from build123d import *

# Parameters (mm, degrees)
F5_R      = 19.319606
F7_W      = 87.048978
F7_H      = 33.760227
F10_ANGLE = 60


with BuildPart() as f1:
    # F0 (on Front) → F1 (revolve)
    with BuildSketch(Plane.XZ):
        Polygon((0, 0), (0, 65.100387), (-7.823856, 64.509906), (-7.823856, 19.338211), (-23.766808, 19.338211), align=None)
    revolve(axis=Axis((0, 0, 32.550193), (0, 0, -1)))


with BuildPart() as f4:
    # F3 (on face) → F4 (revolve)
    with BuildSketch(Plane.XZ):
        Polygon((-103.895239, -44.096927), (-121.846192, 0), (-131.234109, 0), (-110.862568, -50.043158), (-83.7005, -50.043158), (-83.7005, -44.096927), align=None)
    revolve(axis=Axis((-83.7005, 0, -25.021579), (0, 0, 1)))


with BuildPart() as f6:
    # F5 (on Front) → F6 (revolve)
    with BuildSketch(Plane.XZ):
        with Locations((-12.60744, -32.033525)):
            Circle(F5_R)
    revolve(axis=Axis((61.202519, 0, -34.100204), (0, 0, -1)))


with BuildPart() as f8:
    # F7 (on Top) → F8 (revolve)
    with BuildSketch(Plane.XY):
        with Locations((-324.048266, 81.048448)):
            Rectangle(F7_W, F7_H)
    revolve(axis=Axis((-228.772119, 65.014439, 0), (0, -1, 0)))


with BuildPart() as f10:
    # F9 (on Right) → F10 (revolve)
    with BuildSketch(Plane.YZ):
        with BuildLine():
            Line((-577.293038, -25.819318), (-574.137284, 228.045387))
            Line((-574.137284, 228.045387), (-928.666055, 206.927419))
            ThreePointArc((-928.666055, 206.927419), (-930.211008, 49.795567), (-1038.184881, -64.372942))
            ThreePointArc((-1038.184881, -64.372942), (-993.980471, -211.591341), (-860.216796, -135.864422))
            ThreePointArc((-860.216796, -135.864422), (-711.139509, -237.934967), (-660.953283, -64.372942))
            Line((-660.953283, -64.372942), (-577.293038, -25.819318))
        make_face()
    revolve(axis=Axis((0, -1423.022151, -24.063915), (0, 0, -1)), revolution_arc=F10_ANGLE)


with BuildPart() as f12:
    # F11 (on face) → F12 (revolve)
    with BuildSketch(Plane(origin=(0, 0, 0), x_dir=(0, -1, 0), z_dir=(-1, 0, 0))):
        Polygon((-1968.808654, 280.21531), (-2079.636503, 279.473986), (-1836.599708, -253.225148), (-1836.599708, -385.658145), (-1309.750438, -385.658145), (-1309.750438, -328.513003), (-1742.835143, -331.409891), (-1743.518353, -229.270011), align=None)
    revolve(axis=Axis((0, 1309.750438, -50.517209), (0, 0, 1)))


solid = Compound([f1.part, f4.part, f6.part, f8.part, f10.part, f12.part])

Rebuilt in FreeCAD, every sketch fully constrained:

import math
import FreeCAD as App
import Part
import Sketcher
from FreeCAD import Vector
Q = App.Units.Quantity


def add_polygon(sketch, points):
    """Adds a closed chain of lines whose ends are joined by coincident constraints."""
    first, n = sketch.GeometryCount, len(points)
    for a, b in zip(points, points[1:] + points[:1]):
        sketch.addGeometry(Part.LineSegment(App.Vector(*a, 0), App.Vector(*b, 0)), False)
    for i in range(n):
        sketch.addConstraint(Sketcher.Constraint("Coincident", first + i, 2, first + (i + 1) % n, 1))

doc = App.newDocument("Part")
body = doc.addObject("PartDesign::Body", "Body")

sketch1 = doc.addObject("Sketcher::SketchObject", "Sketch")
body.addObject(sketch1)
sketch1.AttachmentSupport = (doc.XZ_Plane, [""])
sketch1.MapMode = "FlatFace"
add_polygon(sketch1, [(0, 0), (0, 65), (-8, 65), (-8, 19), (-24, 19)])
sketch1.addConstraint(Sketcher.Constraint("Vertical", 0))
sketch1.addConstraint(Sketcher.Constraint("Vertical", 2))
sketch1.addConstraint(Sketcher.Constraint("Horizontal", 3))
sketch1.addConstraint(Sketcher.Constraint("Coincident", 4, 2, -1, 1))
sketch1.addConstraint(Sketcher.Constraint("DistanceX", 3, 2, 3, 1, Q("15.942952 mm")))
sketch1.addConstraint(Sketcher.Constraint("DistanceY", 0, 1, 0, 2, Q("65.100387 mm")))
sketch1.addConstraint(Sketcher.Constraint("DistanceY", 2, 2, 2, 1, Q("45.171695 mm")))
sketch1.addConstraint(Sketcher.Constraint("DistanceY", -1, 1, 2, 2, Q("19.338211 mm")))
sketch1.addConstraint(Sketcher.Constraint("DistanceX", 3, 2, -1, 1, Q("23.766808 mm")))
revolution = doc.addObject("PartDesign::Revolution", "Revolution")
body.addObject(revolution)
revolution.Profile = sketch1
revolution.ReferenceAxis = (sketch1, ["V_Axis"])
revolution.Angle = 360
body2 = doc.addObject("PartDesign::Body", "Body001")

sketch2 = doc.addObject("Sketcher::SketchObject", "Sketch001")
body2.addObject(sketch2)
sketch2.AttachmentSupport = (doc.getObject("XZ_Plane001"), [""])
sketch2.MapMode = "FlatFace"
add_polygon(sketch2, [(-104, -44), (-122, 0), (-131, 0), (-111, -50), (-84, -50), (-84, -44)])
sketch2.addGeometry(Part.LineSegment(Vector(-84, -50, 0), Vector(-84, 0, 0)), True)
sketch2.addConstraint(Sketcher.Constraint("Horizontal", 1))
sketch2.addConstraint(Sketcher.Constraint("Horizontal", 3))
sketch2.addConstraint(Sketcher.Constraint("Vertical", 4))
sketch2.addConstraint(Sketcher.Constraint("Horizontal", 5))
sketch2.addConstraint(Sketcher.Constraint("Vertical", 6))
sketch2.addConstraint(Sketcher.Constraint("Coincident", 6, 1, 3, 2))
sketch2.addConstraint(Sketcher.Constraint("PointOnObject", 0, 2, -1))
sketch2.addConstraint(Sketcher.Constraint("PointOnObject", 6, 2, -1))
sketch2.addConstraint(Sketcher.Constraint("Parallel", 0, 2))
sketch2.addConstraint(Sketcher.Constraint("DistanceX", 5, 2, 5, 1, Q("20.194739 mm")))
sketch2.addConstraint(Sketcher.Constraint("DistanceY", 4, 1, 4, 2, Q("5.946231 mm")))
sketch2.addConstraint(Sketcher.Constraint("DistanceX", 3, 2, -1, 1, Q("83.7005 mm")))
sketch2.addConstraint(Sketcher.Constraint("DistanceX", 1, 2, 1, 1, Q("9.387917 mm")))
sketch2.addConstraint(Sketcher.Constraint("DistanceX", 3, 1, 3, 2, Q("27.162068 mm")))
sketch2.addConstraint(Sketcher.Constraint("DistanceY", 6, 1, 6, 2, Q("50.043158 mm")))
revolution2 = doc.addObject("PartDesign::Revolution", "Revolution001")
body2.addObject(revolution2)
revolution2.Profile = sketch2
revolution2.ReferenceAxis = (sketch2, ["Axis0"])
revolution2.Angle = 360
body3 = doc.addObject("PartDesign::Body", "Body002")

sketch3 = doc.addObject("Sketcher::SketchObject", "Sketch002")
body3.addObject(sketch3)
sketch3.AttachmentSupport = (doc.getObject("XZ_Plane002"), [""])
sketch3.MapMode = "FlatFace"
sketch3.addGeometry(Part.Circle(Vector(-13, -32, 0), Vector(0, 0, 1), 19), False)
sketch3.addGeometry(Part.LineSegment(Vector(61, -32, 0), Vector(61, -42, 0)), True)
sketch3.addConstraint(Sketcher.Constraint("Vertical", 1))
sketch3.addConstraint(Sketcher.Constraint("Horizontal", 0, 3, 1, 1))
sketch3.addConstraint(Sketcher.Constraint("DistanceY", 1, 2, 1, 1, Q("10 mm")))
sketch3.addConstraint(Sketcher.Constraint("Diameter", 0, Q("38.639212 mm")))
sketch3.addConstraint(Sketcher.Constraint("DistanceX", 0, 3, -1, 1, Q("12.60744 mm")))
sketch3.addConstraint(Sketcher.Constraint("DistanceX", -1, 1, 1, 1, Q("61.202519 mm")))
sketch3.addConstraint(Sketcher.Constraint("DistanceY", 0, 3, -1, 1, Q("32.033525 mm")))
revolution3 = doc.addObject("PartDesign::Revolution", "Revolution002")
body3.addObject(revolution3)
revolution3.Profile = sketch3
revolution3.ReferenceAxis = (sketch3, ["Axis0"])
revolution3.Angle = 360
body4 = doc.addObject("PartDesign::Body", "Body003")

sketch4 = doc.addObject("Sketcher::SketchObject", "Sketch003")
body4.addObject(sketch4)
sketch4.AttachmentSupport = (doc.getObject("XY_Plane003"), [""])
sketch4.MapMode = "FlatFace"
add_polygon(sketch4, [(-368, 98), (-368, 64), (-281, 64), (-281, 98)])
sketch4.addGeometry(Part.LineSegment(Vector(-229, 98, 0), Vector(-229, 64, 0)), True)
sketch4.addConstraint(Sketcher.Constraint("Vertical", 0))
sketch4.addConstraint(Sketcher.Constraint("Horizontal", 1))
sketch4.addConstraint(Sketcher.Constraint("Vertical", 2))
sketch4.addConstraint(Sketcher.Constraint("Horizontal", 3))
sketch4.addConstraint(Sketcher.Constraint("Vertical", 4))
sketch4.addConstraint(Sketcher.Constraint("Horizontal", 3, 2, 4, 1))
sketch4.addConstraint(Sketcher.Constraint("Horizontal", 1, 2, 4, 2))
sketch4.addConstraint(Sketcher.Constraint("DistanceX", 1, 1, 1, 2, Q("87.048978 mm")))
sketch4.addConstraint(Sketcher.Constraint("DistanceY", 0, 2, 0, 1, Q("33.760227 mm")))
sketch4.addConstraint(Sketcher.Constraint("DistanceY", -1, 1, 2, 2, Q("97.928562 mm")))
sketch4.addConstraint(Sketcher.Constraint("DistanceX", 4, 1, -1, 1, Q("228.772119 mm")))
sketch4.addConstraint(Sketcher.Constraint("DistanceX", 0, 2, -1, 1, Q("367.572755 mm")))
revolution4 = doc.addObject("PartDesign::Revolution", "Revolution003")
body4.addObject(revolution4)
revolution4.Profile = sketch4
revolution4.ReferenceAxis = (sketch4, ["Axis0"])
revolution4.Angle = 360
body5 = doc.addObject("PartDesign::Body", "Body004")

sketch5 = doc.addObject("Sketcher::SketchObject", "Sketch004")
body5.addObject(sketch5)
sketch5.AttachmentSupport = (doc.getObject("YZ_Plane004"), [""])
sketch5.MapMode = "FlatFace"
sketch5.addGeometry(Part.LineSegment(Vector(-577, -26, 0), Vector(-574, 228, 0)), False)
sketch5.addGeometry(Part.LineSegment(Vector(-574, 228, 0), Vector(-929, 207, 0)), False)
sketch5.addGeometry(Part.ArcOfCircle(Part.Circle(Vector(-1130, 130, 0), Vector(0, 0, 1), 215), math.radians(-65), math.radians(21)), False)
sketch5.addGeometry(Part.ArcOfCircle(Part.Circle(Vector(-957, -120, 0), Vector(0, 0, 1), 98), math.radians(145), math.radians(351)), False)
sketch5.addGeometry(Part.ArcOfCircle(Part.Circle(Vector(-749, -133, 0), Vector(0, 0, 1), 111), math.radians(-179), math.radians(38)), False)
sketch5.addGeometry(Part.LineSegment(Vector(-661, -64, 0), Vector(-577, -26, 0)), False)
sketch5.addGeometry(Part.LineSegment(Vector(-1423, 228, 0), Vector(-1423, -136, 0)), True)
sketch5.addConstraint(Sketcher.Constraint("Coincident", 0, 2, 1, 1))
sketch5.addConstraint(Sketcher.Constraint("Coincident", 1, 2, 2, 2))
sketch5.addConstraint(Sketcher.Constraint("Coincident", 2, 1, 3, 1))
sketch5.addConstraint(Sketcher.Constraint("Coincident", 3, 2, 4, 1))
sketch5.addConstraint(Sketcher.Constraint("Coincident", 4, 2, 5, 1))
sketch5.addConstraint(Sketcher.Constraint("Coincident", 5, 2, 0, 1))
sketch5.addConstraint(Sketcher.Constraint("Vertical", 6))
sketch5.addConstraint(Sketcher.Constraint("Horizontal", 2, 1, 4, 2))
sketch5.addConstraint(Sketcher.Constraint("Horizontal", 0, 2, 6, 1))
sketch5.addConstraint(Sketcher.Constraint("Horizontal", 3, 2, 6, 2))
sketch5.addConstraint(Sketcher.Constraint("Radius", 2, Q("215.143728 mm")))
sketch5.addConstraint(Sketcher.Constraint("Radius", 3, Q("98.339974 mm")))
sketch5.addConstraint(Sketcher.Constraint("Radius", 4, Q("111.470125 mm")))
sketch5.addConstraint(Sketcher.Constraint("DistanceX", 4, 2, 0, 2, Q("86.815999 mm")))
sketch5.addConstraint(Sketcher.Constraint("DistanceY", 6, 2, 6, 1, Q("363.909809 mm")))
sketch5.addConstraint(Sketcher.Constraint("DistanceX", 4, 3, 5, 2, Q("171.4901 mm")))
sketch5.addConstraint(Sketcher.Constraint("Distance", 0, Q("253.884319 mm")))
sketch5.addConstraint(Sketcher.Constraint("Distance", 5, Q("92.116331 mm")))
sketch5.addConstraint(Sketcher.Constraint("DistanceY", -1, 1, 2, 3, Q("130.33063 mm")))
sketch5.addConstraint(Sketcher.Constraint("DistanceY", 3, 3, -1, 1, Q("120.33886 mm")))
sketch5.addConstraint(Sketcher.Constraint("DistanceY", 4, 3, -1, 1, Q("133.013349 mm")))
sketch5.addConstraint(Sketcher.Constraint("DistanceY", -1, 1, 1, 2, Q("206.927419 mm")))
sketch5.addConstraint(Sketcher.Constraint("DistanceX", 2, 1, -1, 1, Q("1038.184881 mm")))
sketch5.addConstraint(Sketcher.Constraint("DistanceY", 2, 1, -1, 1, Q("64.372942 mm")))
sketch5.addConstraint(Sketcher.Constraint("DistanceX", 6, 1, -1, 1, Q("1423.022151 mm")))
revolution5 = doc.addObject("PartDesign::Revolution", "Revolution004")
body5.addObject(revolution5)
revolution5.Profile = sketch5
revolution5.ReferenceAxis = (sketch5, ["Axis0"])
revolution5.Angle = 60
body6 = doc.addObject("PartDesign::Body", "Body005")

sketch6 = doc.addObject("Sketcher::SketchObject", "Sketch005")
body6.addObject(sketch6)
sketch6.AttachmentSupport = (doc.getObject("YZ_Plane005"), [""])
sketch6.MapMode = "FlatFace"
add_polygon(sketch6, [(1969, 280), (2080, 279), (1837, -253), (1837, -386), (1310, -386), (1310, -329), (1743, -331), (1744, -229)])
sketch6.addGeometry(Part.LineSegment(Vector(1310, -386, 0), Vector(1310, 280, 0)), True)
sketch6.addConstraint(Sketcher.Constraint("Vertical", 2))
sketch6.addConstraint(Sketcher.Constraint("Horizontal", 3))
sketch6.addConstraint(Sketcher.Constraint("Vertical", 4))
sketch6.addConstraint(Sketcher.Constraint("Vertical", 8))
sketch6.addConstraint(Sketcher.Constraint("Coincident", 8, 1, 3, 2))
sketch6.addConstraint(Sketcher.Constraint("Parallel", 0, 5))
sketch6.addConstraint(Sketcher.Constraint("Perpendicular", 5, 6))
sketch6.addConstraint(Sketcher.Constraint("Horizontal", 7, 2, 8, 2))
sketch6.addConstraint(Sketcher.Constraint("DistanceX", 3, 2, 3, 1, Q("526.84927 mm")))
sketch6.addConstraint(Sketcher.Constraint("DistanceY", 4, 1, 4, 2, Q("57.145142 mm")))
sketch6.addConstraint(Sketcher.Constraint("DistanceX", 6, 2, 7, 2, Q("225.290301 mm")))
sketch6.addConstraint(Sketcher.Constraint("DistanceY", 5, 2, 7, 2, Q("611.625201 mm")))
sketch6.addConstraint(Sketcher.Constraint("Distance", 0, Q("110.830328 mm")))
sketch6.addConstraint(Sketcher.Constraint("Distance", 1, Q("585.52135 mm")))
sketch6.addConstraint(Sketcher.Constraint("DistanceY", 2, 2, 2, 1, Q("132.432997 mm")))
sketch6.addConstraint(Sketcher.Constraint("DistanceY", 8, 1, 8, 2, Q("665.873455 mm")))
sketch6.addConstraint(Sketcher.Constraint("DistanceX", -1, 1, 1, 2, Q("1836.599708 mm")))
sketch6.addConstraint(Sketcher.Constraint("DistanceY", 5, 2, -1, 1, Q("331.409891 mm")))
sketch6.addConstraint(Sketcher.Constraint("DistanceY", 6, 2, -1, 1, Q("229.270011 mm")))
revolution6 = doc.addObject("PartDesign::Revolution", "Revolution005")
body6.addObject(revolution6)
revolution6.Profile = sketch6
revolution6.ReferenceAxis = (sketch6, ["Axis0"])
revolution6.Angle = 360

doc.recompute()
